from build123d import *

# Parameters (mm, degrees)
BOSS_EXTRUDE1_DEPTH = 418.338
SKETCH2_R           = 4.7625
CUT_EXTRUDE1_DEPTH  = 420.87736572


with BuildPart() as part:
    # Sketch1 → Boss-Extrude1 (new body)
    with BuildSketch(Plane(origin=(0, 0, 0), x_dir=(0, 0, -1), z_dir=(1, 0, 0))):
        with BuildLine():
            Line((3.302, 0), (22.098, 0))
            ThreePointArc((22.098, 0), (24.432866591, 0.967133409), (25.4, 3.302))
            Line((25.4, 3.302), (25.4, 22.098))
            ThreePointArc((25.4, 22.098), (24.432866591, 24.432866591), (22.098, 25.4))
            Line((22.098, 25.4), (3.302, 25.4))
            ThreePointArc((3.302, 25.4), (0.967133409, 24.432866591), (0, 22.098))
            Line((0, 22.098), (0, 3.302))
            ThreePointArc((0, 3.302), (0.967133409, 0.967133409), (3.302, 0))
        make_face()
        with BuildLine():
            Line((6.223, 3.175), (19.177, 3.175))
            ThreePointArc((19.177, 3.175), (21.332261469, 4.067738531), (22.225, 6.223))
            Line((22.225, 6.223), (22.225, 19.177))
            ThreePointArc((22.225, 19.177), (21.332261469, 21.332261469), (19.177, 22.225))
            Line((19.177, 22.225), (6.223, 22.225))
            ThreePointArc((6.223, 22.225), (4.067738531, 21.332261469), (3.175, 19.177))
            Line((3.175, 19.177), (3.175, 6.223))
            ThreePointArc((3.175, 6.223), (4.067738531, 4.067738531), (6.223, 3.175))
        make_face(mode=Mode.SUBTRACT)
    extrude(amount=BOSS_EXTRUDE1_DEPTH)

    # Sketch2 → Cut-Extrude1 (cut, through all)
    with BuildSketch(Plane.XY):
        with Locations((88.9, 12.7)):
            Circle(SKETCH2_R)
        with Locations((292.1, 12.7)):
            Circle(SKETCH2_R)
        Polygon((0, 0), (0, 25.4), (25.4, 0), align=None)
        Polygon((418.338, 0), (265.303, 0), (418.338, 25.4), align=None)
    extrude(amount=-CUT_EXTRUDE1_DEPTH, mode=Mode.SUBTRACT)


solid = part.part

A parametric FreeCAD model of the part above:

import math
import FreeCAD as App
import Part
import Sketcher
Q = App.Units.Quantity

doc = App.newDocument("Part")
body = doc.addObject("PartDesign::Body", "Body")

sketch1 = body.newObject("Sketcher::SketchObject", "Sketch")
sketch1.AttachmentSupport = (doc.getObject("YZ_Plane"), [""])
sketch1.MapMode = "FlatFace"
sketch1.addGeometry([
    Part.LineSegment(App.Vector(0, -3.3, 0), App.Vector(0, -22.1, 0)),
    Part.ArcOfCircle(Part.Circle(App.Vector(3.3, -22.1, 0), App.Vector(0, 0, 1), 3.3), math.radians(-180), math.radians(-90)),
    Part.LineSegment(App.Vector(3.3, -25.4, 0), App.Vector(22.1, -25.4, 0)),
    Part.ArcOfCircle(Part.Circle(App.Vector(22.1, -22.1, 0), App.Vector(0, 0, 1), 3.3), math.radians(-90), math.radians(0)),
    Part.LineSegment(App.Vector(25.4, -22.1, 0), App.Vector(25.4, -3.3, 0)),
    Part.ArcOfCircle(Part.Circle(App.Vector(22.1, -3.3, 0), App.Vector(0, 0, 1), 3.3), math.radians(0), math.radians(90)),
    Part.LineSegment(App.Vector(22.1, 0, 0), App.Vector(3.3, 0, 0)),
    Part.ArcOfCircle(Part.Circle(App.Vector(3.3, -3.3, 0), App.Vector(0, 0, 1), 3.3), math.radians(90), math.radians(180)),
    Part.LineSegment(App.Vector(3.2, -19.2, 0), App.Vector(3.2, -6.2, 0)),
    Part.ArcOfCircle(Part.Circle(App.Vector(6.2, -6.2, 0), App.Vector(0, 0, 1), 3), math.radians(90), math.radians(180)),
    Part.LineSegment(App.Vector(6.2, -3.2, 0), App.Vector(19.2, -3.2, 0)),
    Part.ArcOfCircle(Part.Circle(App.Vector(19.2, -6.2, 0), App.Vector(0, 0, 1), 3), math.radians(0), math.radians(90)),
    Part.LineSegment(App.Vector(22.2, -6.2, 0), App.Vector(22.2, -19.2, 0)),
    Part.ArcOfCircle(Part.Circle(App.Vector(19.2, -19.2, 0), App.Vector(0, 0, 1), 3), math.radians(-90), math.radians(0)),
    Part.LineSegment(App.Vector(19.2, -22.2, 0), App.Vector(6.2, -22.2, 0)),
    Part.ArcOfCircle(Part.Circle(App.Vector(6.2, -19.2, 0), App.Vector(0, 0, 1), 3), math.radians(180), math.radians(270)),
], False)
sketch1.addConstraint([
    Sketcher.Constraint("Tangent", 0, 2, 1, 1),
    Sketcher.Constraint("Tangent", 1, 2, 2, 1),
    Sketcher.Constraint("Tangent", 2, 2, 3, 1),
    Sketcher.Constraint("Tangent", 3, 2, 4, 1),
    Sketcher.Constraint("Tangent", 4, 2, 5, 1),
    Sketcher.Constraint("Tangent", 5, 2, 6, 1),
    Sketcher.Constraint("Tangent", 6, 2, 7, 1),
    Sketcher.Constraint("Tangent", 7, 2, 0, 1),
    Sketcher.Constraint("Tangent", 8, 2, 9, 2),
    Sketcher.Constraint("Tangent", 9, 1, 10, 1),
    Sketcher.Constraint("Tangent", 10, 2, 11, 2),
    Sketcher.Constraint("Tangent", 11, 1, 12, 1),
    Sketcher.Constraint("Tangent", 12, 2, 13, 2),
    Sketcher.Constraint("Tangent", 13, 1, 14, 1),
    Sketcher.Constraint("Tangent", 14, 2, 15, 2),
    Sketcher.Constraint("Tangent", 15, 1, 8, 1),
    Sketcher.Constraint("Vertical", 0),
    Sketcher.Constraint("Horizontal", 2),
    Sketcher.Constraint("Vertical", 4),
    Sketcher.Constraint("Horizontal", 6),
    Sketcher.Constraint("Vertical", 8),
    Sketcher.Constraint("Horizontal", 10),
    Sketcher.Constraint("Vertical", 12),
    Sketcher.Constraint("Horizontal", 14),
    Sketcher.Constraint("Equal", 1, 3),
    Sketcher.Constraint("Equal", 3, 5),
    Sketcher.Constraint("Equal", 5, 7),
    Sketcher.Constraint("Equal", 9, 11),
    Sketcher.Constraint("Equal", 11, 13),
    Sketcher.Constraint("Equal", 13, 15),
    Sketcher.Constraint("PointOnObject", 0, 2, -2),
    Sketcher.Constraint("PointOnObject", 5, 2, -1),
    Sketcher.Constraint("Equal", 6, 0),
    Sketcher.Constraint("Equal", 14, 8),
    Sketcher.Constraint("Radius", 1, Q("0.13 in")),
    Sketcher.Constraint("Radius", 9, Q("0.12 in")),
    Sketcher.Constraint("DistanceY", 1, 2, -1, 1, Q("1 in")),
    Sketcher.Constraint("DistanceX", 10, 1, 10, 2, Q("0.51 in")),
    Sketcher.Constraint("DistanceX", -1, 1, 9, 3, Q("0.245 in")),
    Sketcher.Constraint("DistanceY", 9, 3, -1, 1, Q("0.245 in")),
])
pad1 = body.newObject("PartDesign::Pad", "Pad")
pad1.Profile = sketch1
pad1.Length = Q("16.47 in")

sketch2 = body.newObject("Sketcher::SketchObject", "Sketch001")
sketch2.AttachmentSupport = (doc.getObject("XY_Plane"), [""])
sketch2.MapMode = "FlatFace"
sketch2.addGeometry([
    Part.Circle(App.Vector(88.9, 12.7, 0), App.Vector(0, 0, 1), 4.8),
    Part.Circle(App.Vector(292.1, 12.7, 0), App.Vector(0, 0, 1), 4.8),
    Part.LineSegment(App.Vector(0, 25.4, 0), App.Vector(0, 0, 0)),
    Part.LineSegment(App.Vector(0, 0, 0), App.Vector(25.4, 0, 0)),
    Part.LineSegment(App.Vector(25.4, 0, 0), App.Vector(0, 25.4, 0)),
    Part.LineSegment(App.Vector(265.3, 0, 0), App.Vector(418.3, 0, 0)),
    Part.LineSegment(App.Vector(418.3, 0, 0), App.Vector(418.3, 25.4, 0)),
    Part.LineSegment(App.Vector(418.3, 25.4, 0), App.Vector(265.3, 0, 0)),
], False)
sketch2.addConstraint([
    Sketcher.Constraint("Coincident", 2, 2, 3, 1),
    Sketcher.Constraint("Coincident", 3, 2, 4, 1),
    Sketcher.Constraint("Coincident", 4, 2, 2, 1),
    Sketcher.Constraint("Coincident", 5, 2, 6, 1),
    Sketcher.Constraint("Coincident", 6, 2, 7, 1),
    Sketcher.Constraint("Coincident", 7, 2, 5, 1),
    Sketcher.Constraint("Vertical", 2),
    Sketcher.Constraint("Horizontal", 3),
    Sketcher.Constraint("Horizontal", 5),
    Sketcher.Constraint("Vertical", 6),
    Sketcher.Constraint("Coincident", 2, 2, -1, 1),
    Sketcher.Constraint("Equal", 0, 1),
    Sketcher.Constraint("PointOnObject", 5, 2, -1),
    Sketcher.Constraint("Horizontal", 0, 3, 1, 3),
    Sketcher.Constraint("Horizontal", 4, 2, 6, 2),
    Sketcher.Constraint("Equal", 3, 2),
    Sketcher.Constraint("DistanceX", 3, 1, 3, 2, Q("1 in")),
    Sketcher.Constraint("Diameter", 0, Q("0.375 in")),
    Sketcher.Constraint("DistanceX", 0, 3, 1, 3, Q("8 in")),
    Sketcher.Constraint("DistanceX", -1, 1, 0, 3, Q("3.5 in")),
    Sketcher.Constraint("DistanceY", -1, 1, 0, 3, Q("0.5 in")),
    Sketcher.Constraint("DistanceX", 5, 1, 5, 2, Q("6.025 in")),
    Sketcher.Constraint("DistanceX", -1, 1, 5, 2, Q("16.47 in")),
])
pocket1 = body.newObject("PartDesign::Pocket", "Pocket")
pocket1.Profile = sketch2
pocket1.Type = "ThroughAll"

doc.recompute()
